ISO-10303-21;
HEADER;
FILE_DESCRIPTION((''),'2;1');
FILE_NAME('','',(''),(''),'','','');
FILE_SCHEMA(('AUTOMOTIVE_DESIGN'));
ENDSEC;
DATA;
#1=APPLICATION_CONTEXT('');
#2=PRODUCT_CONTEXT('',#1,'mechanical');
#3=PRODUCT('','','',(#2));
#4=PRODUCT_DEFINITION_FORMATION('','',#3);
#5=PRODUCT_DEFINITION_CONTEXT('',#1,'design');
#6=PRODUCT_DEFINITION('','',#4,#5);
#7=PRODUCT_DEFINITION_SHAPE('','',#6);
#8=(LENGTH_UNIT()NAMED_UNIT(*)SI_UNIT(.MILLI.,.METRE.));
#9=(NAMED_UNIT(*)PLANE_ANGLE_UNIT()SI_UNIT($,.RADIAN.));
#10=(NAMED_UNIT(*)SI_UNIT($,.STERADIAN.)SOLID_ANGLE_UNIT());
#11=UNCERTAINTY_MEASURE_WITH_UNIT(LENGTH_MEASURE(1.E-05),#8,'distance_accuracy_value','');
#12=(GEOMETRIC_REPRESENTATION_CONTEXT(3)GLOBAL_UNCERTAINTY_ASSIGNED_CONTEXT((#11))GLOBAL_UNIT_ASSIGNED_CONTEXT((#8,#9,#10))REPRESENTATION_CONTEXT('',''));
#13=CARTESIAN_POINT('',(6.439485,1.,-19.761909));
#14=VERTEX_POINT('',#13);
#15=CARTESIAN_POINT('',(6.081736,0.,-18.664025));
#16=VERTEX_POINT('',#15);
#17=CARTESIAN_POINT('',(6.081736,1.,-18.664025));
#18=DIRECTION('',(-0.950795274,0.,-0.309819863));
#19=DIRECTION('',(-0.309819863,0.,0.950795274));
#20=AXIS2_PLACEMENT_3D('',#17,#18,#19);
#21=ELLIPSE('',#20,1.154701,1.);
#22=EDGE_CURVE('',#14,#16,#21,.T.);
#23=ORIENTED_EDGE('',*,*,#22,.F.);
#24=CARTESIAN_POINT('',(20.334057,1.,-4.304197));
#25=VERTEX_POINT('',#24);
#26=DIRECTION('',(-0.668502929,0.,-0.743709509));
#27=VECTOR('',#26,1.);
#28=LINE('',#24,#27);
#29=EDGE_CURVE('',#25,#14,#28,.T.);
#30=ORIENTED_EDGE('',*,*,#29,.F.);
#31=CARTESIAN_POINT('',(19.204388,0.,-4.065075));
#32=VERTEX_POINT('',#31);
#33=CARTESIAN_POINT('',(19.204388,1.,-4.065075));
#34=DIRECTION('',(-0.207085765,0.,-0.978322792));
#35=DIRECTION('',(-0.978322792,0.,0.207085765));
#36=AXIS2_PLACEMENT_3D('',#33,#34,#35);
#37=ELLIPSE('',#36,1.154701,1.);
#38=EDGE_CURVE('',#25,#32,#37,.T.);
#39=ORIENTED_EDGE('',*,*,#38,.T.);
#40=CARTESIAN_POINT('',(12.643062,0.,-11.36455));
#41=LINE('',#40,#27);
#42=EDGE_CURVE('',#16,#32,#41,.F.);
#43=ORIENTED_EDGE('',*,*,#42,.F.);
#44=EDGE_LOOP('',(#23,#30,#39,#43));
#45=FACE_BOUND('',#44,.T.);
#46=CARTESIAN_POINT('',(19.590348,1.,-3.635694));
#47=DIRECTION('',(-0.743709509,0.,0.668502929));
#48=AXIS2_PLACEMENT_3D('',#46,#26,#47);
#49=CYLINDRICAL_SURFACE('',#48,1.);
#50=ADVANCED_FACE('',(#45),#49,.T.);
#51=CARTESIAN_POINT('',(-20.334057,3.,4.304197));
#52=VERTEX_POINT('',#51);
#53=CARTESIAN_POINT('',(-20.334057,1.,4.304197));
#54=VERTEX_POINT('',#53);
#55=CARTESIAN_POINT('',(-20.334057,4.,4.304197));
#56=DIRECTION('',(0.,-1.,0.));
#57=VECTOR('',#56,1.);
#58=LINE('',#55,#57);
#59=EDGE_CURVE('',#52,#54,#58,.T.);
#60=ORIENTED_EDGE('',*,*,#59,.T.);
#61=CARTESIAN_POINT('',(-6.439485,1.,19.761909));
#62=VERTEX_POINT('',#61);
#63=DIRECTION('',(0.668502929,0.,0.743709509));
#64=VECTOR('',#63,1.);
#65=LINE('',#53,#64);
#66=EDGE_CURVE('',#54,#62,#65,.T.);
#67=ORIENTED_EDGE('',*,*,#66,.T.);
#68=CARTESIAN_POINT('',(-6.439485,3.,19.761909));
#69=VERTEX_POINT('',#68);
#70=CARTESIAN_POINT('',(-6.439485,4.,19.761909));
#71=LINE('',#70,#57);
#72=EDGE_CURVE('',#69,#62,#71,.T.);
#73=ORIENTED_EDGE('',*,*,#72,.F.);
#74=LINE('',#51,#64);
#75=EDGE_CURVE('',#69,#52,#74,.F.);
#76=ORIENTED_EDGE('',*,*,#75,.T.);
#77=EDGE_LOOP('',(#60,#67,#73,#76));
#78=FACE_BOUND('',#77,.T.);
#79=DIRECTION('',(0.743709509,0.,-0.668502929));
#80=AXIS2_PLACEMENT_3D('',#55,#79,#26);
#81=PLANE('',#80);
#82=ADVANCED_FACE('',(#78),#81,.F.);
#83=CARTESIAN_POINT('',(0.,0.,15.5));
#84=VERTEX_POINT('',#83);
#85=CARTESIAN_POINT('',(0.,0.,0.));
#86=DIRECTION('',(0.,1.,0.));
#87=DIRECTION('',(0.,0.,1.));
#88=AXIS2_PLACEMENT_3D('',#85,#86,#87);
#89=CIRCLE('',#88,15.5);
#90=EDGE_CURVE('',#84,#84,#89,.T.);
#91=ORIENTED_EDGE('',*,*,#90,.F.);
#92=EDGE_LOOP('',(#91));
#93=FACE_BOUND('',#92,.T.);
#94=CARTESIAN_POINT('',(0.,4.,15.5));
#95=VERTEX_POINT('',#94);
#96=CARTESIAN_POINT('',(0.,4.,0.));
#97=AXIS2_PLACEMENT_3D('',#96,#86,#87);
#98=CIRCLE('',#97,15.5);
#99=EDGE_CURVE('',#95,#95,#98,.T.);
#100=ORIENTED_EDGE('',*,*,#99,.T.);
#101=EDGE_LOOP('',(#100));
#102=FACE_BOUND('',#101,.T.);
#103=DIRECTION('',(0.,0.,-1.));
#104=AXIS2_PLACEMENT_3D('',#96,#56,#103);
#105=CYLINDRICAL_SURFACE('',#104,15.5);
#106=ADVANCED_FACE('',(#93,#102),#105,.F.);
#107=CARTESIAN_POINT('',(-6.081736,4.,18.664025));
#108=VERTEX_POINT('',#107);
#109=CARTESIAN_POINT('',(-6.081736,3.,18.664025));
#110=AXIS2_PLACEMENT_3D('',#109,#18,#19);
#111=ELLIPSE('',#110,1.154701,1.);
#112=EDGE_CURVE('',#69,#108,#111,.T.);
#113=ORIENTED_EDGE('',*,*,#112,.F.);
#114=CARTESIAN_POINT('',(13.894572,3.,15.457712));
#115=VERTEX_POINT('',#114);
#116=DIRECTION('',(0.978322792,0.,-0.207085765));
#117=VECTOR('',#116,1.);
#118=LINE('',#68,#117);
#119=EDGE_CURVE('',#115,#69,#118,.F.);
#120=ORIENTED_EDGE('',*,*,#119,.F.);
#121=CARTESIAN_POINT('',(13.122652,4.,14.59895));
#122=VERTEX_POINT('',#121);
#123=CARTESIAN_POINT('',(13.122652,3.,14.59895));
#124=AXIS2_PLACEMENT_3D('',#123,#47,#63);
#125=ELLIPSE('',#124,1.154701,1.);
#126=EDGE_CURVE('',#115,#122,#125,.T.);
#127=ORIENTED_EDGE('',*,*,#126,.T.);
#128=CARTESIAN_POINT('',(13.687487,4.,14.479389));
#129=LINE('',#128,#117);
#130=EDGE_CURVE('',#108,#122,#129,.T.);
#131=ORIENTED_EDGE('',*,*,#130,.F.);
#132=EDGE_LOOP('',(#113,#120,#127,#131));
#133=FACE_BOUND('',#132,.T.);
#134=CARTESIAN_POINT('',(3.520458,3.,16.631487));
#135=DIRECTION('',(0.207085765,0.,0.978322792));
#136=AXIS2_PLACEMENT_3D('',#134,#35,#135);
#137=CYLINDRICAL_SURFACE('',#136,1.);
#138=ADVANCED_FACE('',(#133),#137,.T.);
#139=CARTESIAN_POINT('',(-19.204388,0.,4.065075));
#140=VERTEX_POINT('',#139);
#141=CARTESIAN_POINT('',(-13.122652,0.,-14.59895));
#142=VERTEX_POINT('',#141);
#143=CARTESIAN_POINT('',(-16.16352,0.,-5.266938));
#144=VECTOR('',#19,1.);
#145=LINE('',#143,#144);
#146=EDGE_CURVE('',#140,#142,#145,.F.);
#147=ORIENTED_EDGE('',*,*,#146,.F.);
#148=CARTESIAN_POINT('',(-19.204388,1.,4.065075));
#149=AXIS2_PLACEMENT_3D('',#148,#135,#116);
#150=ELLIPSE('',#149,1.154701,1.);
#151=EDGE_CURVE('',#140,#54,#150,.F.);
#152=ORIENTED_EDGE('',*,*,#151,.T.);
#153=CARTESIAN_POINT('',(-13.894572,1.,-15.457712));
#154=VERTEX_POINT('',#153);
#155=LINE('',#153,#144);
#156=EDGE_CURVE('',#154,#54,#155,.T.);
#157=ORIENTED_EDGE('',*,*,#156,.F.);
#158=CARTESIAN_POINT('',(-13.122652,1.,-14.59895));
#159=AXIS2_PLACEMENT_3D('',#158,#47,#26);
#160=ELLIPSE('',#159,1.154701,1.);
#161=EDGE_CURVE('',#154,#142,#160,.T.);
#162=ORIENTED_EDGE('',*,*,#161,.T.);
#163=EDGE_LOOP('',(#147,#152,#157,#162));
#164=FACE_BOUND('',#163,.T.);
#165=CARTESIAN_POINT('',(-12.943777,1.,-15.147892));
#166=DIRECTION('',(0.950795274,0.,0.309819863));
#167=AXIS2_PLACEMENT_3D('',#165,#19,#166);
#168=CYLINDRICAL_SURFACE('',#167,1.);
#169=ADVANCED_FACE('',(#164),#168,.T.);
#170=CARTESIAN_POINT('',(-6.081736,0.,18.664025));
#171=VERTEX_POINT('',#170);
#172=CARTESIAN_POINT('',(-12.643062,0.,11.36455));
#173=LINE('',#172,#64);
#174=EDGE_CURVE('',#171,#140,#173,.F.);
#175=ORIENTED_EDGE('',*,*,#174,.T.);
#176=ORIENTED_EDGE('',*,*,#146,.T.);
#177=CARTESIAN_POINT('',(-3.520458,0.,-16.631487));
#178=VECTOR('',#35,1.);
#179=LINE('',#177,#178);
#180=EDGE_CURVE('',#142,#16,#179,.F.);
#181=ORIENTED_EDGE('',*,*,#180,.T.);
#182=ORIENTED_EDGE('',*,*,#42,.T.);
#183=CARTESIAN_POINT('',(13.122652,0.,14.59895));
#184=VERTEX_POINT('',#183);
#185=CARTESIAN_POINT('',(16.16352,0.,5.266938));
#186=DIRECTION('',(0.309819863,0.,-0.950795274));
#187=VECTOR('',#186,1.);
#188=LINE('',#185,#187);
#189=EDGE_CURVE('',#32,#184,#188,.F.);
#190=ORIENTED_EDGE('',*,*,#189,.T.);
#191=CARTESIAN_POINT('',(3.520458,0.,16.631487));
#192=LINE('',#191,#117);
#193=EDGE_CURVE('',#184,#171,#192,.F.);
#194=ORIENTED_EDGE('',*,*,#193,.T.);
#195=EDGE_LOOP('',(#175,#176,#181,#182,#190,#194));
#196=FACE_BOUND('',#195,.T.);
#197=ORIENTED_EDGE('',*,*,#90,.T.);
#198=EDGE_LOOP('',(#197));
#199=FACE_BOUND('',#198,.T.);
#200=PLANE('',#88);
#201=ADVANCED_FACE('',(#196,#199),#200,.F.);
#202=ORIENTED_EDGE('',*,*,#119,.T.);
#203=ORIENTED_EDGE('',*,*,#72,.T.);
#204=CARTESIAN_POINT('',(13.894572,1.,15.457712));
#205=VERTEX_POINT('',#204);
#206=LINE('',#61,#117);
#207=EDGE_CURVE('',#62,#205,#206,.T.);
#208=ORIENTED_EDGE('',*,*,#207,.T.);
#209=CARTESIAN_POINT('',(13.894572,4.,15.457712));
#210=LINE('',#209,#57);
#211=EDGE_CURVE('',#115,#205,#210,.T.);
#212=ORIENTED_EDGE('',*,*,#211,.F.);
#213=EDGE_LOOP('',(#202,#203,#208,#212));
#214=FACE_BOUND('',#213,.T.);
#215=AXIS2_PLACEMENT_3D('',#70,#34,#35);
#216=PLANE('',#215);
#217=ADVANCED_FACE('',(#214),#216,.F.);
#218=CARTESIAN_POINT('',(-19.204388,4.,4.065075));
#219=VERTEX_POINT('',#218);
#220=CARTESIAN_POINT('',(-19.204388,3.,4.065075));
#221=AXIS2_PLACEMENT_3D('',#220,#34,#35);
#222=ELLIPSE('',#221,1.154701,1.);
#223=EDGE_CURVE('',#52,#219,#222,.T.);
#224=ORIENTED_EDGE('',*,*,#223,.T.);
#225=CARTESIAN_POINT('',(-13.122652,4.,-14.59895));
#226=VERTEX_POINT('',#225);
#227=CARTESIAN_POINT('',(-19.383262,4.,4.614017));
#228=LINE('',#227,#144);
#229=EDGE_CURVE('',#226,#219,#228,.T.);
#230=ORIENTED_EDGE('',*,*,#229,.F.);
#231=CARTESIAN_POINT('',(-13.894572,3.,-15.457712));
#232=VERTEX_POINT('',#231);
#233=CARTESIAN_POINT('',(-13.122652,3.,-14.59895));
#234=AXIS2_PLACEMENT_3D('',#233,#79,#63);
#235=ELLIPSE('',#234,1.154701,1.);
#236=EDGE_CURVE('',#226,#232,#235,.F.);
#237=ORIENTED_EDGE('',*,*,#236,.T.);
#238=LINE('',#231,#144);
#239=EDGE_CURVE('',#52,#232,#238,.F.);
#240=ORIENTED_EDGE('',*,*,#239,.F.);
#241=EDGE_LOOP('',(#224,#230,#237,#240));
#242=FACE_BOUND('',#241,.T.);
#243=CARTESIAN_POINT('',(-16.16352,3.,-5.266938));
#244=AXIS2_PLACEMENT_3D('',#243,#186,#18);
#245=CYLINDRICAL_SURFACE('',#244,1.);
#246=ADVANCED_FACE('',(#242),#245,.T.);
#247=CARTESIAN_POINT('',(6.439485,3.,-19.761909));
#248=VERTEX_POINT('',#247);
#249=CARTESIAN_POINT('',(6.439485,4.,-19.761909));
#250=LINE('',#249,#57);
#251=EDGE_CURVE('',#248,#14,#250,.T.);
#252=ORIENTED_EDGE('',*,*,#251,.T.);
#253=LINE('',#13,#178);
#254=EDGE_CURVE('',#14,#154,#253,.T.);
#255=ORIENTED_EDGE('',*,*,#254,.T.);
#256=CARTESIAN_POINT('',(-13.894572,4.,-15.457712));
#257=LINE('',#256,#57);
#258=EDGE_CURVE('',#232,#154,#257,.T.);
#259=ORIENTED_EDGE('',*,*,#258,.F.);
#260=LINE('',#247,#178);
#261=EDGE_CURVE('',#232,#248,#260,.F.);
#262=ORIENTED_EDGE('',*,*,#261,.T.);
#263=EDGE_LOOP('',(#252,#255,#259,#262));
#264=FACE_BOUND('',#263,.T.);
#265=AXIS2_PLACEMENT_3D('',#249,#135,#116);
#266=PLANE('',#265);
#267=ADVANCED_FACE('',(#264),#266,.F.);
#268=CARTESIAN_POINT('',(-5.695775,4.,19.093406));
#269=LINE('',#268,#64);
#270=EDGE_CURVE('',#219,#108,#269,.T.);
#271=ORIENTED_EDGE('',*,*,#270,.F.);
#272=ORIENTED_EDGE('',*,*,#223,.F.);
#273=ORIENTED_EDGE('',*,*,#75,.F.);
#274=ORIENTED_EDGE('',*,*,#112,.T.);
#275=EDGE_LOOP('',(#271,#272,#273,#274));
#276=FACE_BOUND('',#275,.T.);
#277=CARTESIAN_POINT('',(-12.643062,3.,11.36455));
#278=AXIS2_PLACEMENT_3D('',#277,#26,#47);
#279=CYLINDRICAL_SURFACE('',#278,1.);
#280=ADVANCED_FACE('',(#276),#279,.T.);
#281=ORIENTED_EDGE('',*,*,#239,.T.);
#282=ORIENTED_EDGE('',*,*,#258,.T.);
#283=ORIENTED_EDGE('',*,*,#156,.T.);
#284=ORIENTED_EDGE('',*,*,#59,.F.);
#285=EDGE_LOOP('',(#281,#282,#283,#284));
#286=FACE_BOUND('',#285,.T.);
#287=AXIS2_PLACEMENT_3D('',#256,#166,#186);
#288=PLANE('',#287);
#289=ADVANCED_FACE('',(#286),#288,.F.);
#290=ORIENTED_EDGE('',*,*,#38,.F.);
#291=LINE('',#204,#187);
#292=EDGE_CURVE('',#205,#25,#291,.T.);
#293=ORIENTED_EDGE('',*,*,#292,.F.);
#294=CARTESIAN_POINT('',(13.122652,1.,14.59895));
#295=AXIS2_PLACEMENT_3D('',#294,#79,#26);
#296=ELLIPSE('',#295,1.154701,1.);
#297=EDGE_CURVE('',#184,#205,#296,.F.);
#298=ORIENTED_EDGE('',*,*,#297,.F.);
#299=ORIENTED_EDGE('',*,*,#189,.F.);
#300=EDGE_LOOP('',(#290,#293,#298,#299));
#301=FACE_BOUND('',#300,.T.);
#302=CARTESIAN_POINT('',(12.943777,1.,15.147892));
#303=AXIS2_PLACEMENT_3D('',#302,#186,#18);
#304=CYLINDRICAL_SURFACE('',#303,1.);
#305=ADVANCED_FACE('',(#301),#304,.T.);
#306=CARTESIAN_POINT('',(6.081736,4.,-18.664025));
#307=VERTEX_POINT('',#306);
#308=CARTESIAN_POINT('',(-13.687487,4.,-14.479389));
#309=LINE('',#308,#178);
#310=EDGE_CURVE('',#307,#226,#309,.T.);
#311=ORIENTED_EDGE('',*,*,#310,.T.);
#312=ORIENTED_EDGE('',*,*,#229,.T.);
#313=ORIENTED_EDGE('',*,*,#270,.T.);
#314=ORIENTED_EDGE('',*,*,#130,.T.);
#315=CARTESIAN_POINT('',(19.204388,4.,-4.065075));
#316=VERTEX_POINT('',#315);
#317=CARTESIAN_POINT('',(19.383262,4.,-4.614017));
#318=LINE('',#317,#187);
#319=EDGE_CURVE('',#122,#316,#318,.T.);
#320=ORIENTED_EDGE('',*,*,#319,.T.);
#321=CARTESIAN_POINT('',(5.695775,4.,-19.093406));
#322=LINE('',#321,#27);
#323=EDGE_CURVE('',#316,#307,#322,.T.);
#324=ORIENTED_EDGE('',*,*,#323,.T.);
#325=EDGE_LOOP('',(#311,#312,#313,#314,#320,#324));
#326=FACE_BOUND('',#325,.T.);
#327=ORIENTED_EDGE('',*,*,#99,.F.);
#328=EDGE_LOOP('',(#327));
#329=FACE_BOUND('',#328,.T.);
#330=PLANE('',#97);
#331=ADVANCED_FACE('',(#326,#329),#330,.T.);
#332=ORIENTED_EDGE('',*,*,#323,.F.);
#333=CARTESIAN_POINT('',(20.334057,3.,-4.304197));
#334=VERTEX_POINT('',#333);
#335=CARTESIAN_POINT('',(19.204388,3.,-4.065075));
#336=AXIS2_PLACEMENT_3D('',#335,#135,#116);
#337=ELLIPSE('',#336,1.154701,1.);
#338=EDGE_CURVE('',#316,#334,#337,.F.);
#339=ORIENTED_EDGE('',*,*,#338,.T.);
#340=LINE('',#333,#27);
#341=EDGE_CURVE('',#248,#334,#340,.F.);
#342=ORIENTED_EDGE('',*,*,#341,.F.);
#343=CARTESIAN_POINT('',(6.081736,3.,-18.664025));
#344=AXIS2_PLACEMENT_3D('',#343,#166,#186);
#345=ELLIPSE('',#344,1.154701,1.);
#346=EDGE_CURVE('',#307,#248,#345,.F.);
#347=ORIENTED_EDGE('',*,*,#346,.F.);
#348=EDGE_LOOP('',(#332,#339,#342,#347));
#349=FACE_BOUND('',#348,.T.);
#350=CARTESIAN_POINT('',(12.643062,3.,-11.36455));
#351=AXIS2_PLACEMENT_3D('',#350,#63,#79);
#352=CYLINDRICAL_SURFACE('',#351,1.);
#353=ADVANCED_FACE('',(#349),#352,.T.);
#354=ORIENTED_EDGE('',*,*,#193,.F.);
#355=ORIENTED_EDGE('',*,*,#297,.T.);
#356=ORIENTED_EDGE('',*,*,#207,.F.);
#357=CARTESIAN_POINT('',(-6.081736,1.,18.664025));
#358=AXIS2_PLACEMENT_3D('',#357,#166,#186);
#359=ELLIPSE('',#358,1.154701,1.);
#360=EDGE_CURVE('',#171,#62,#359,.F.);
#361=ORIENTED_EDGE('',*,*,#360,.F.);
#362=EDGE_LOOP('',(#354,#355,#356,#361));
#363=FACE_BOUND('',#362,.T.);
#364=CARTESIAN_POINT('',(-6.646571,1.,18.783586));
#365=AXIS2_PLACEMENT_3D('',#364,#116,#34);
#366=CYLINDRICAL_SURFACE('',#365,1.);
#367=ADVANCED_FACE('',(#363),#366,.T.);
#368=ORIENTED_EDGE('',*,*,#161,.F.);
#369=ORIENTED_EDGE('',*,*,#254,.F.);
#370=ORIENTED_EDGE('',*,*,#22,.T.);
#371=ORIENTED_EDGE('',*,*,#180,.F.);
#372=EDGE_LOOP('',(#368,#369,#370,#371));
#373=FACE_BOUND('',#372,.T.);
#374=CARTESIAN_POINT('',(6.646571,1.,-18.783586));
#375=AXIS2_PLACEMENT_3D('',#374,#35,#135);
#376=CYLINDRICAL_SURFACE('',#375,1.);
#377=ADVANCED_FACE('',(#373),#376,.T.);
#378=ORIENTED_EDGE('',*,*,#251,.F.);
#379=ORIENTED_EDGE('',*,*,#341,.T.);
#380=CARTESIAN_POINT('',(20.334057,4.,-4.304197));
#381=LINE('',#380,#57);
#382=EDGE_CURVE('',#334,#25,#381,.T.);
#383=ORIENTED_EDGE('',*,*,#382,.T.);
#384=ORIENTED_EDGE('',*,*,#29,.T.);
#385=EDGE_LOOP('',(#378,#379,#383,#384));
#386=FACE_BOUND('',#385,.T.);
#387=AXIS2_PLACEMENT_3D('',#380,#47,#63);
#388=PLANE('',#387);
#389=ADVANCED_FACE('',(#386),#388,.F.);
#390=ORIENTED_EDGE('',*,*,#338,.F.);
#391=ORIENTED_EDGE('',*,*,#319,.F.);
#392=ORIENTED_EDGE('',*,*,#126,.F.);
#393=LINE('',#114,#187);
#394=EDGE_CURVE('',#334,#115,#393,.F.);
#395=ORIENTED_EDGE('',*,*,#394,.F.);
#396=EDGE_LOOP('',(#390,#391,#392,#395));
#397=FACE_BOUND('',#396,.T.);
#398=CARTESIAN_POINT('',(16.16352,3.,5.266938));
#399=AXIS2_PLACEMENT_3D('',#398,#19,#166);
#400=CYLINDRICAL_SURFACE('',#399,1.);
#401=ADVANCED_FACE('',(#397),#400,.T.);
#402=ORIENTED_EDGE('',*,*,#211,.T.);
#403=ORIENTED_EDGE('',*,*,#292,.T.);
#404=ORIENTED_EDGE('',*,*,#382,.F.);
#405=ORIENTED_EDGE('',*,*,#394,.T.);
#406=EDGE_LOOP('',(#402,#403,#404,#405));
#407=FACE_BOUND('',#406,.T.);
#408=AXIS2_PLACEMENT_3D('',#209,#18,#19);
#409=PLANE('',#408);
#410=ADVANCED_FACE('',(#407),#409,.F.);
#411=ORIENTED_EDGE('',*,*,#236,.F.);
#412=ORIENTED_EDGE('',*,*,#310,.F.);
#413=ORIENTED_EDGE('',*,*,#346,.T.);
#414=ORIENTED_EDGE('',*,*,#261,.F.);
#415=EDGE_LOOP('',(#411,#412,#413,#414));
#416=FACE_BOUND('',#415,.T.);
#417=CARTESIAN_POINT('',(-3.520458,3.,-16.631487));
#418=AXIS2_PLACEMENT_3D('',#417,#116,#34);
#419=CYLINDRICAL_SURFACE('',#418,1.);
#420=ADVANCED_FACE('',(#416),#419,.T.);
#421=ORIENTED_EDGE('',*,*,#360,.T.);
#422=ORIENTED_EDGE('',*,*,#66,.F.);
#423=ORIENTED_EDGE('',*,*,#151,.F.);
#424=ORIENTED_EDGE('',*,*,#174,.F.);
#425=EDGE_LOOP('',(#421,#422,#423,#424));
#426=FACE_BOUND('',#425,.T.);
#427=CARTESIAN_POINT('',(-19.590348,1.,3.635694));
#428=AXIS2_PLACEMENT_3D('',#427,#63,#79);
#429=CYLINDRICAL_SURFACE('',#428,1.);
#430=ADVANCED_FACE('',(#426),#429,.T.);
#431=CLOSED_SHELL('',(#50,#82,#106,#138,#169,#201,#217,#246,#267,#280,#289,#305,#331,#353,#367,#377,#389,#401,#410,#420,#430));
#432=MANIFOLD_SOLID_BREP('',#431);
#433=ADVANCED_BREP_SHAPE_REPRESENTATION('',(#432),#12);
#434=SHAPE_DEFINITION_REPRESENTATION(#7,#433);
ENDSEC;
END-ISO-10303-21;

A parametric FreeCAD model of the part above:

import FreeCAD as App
import Part
import Sketcher

V = App.Vector


def edges_at(feature, points):
    """Names of the edges that pass closest to the given points."""
    edges = feature.Shape.Edges
    near = lambda p: min(range(len(edges)), key=lambda i: edges[i].distToShape(Part.Vertex(*p))[0])
    return sorted({f"Edge{near(p) + 1}" for p in points})


def add_polygon(sketch, points):
    """Adds a closed chain of lines whose ends are joined by coincident constraints."""
    first, n = sketch.GeometryCount, len(points)
    for a, b in zip(points, points[1:] + points[:1]):
        sketch.addGeometry(Part.LineSegment(App.Vector(*a, 0), App.Vector(*b, 0)), False)
    for i in range(n):
        sketch.addConstraint(Sketcher.Constraint("Coincident", first + i, 2, first + (i + 1) % n, 1))

doc = App.newDocument("Part")
body = doc.addObject("PartDesign::Body", "Body")

sketch1 = body.newObject("Sketcher::SketchObject", "Sketch")
sketch1.AttachmentSupport = (doc.getObject("XZ_Plane"), [""])
sketch1.MapMode = "FlatFace"
add_polygon(sketch1, [(14, 15), (20, -4), (6, -20), (-14, -15), (-20, 4), (-6, 20)])
sketch1.addGeometry(Part.Circle(V(0, 0, 0), V(0, 0, 1), 16), False)
sketch1.addConstraint(Sketcher.Constraint("Coincident", 6, 3, -1, 1))
sketch1.addConstraint(Sketcher.Constraint("Symmetric", 0, 2, 3, 2, -1, 1))
sketch1.addConstraint(Sketcher.Constraint("Symmetric", 1, 2, 4, 2, -1, 1))
sketch1.addConstraint(Sketcher.Constraint("Symmetric", 2, 2, 5, 2, -1, 1))
sketch1.addConstraint(Sketcher.Constraint("Equal", 0, 1))
sketch1.addConstraint(Sketcher.Constraint("Equal", 1, 2))
sketch1.addConstraint(Sketcher.Constraint("Diameter", 6, 31.0))
sketch1.addConstraint(Sketcher.Constraint("Distance", 0, 20.78461))
sketch1.addConstraint(Sketcher.Constraint("DistanceY", 1, 2, -1, 1, 19.761909))
sketch1.addConstraint(Sketcher.Constraint("DistanceY", 2, 2, -1, 1, 15.457712))
sketch1.addConstraint(Sketcher.Constraint("DistanceY", 1, 2, 0, 2, 15.457712))
pad1 = body.newObject("PartDesign::Pad", "Pad")
pad1.Profile = sketch1
pad1.Length = 4
pad1.Reversed = True
doc.recompute()

fillet = body.newObject("PartDesign::Fillet", "Fillet")
fillet.Base = (pad1, edges_at(pad1, [
    (13.387, 4, -12.033),
    (-3.728, 4, -17.61),
    (-17.114, 4, -5.577),
    (-13.387, 4, 12.033),
    (3.728, 4, 17.61),
    (-13.387, 0, 12.033),
    (-17.114, 0, -5.577),
    (-3.728, 0, -17.61),
    (17.114, 4, 5.577),
    (13.387, 0, -12.033),
    (17.114, 0, 5.577),
    (3.728, 0, 17.61),
]))
fillet.Radius = 1

doc.recompute()
